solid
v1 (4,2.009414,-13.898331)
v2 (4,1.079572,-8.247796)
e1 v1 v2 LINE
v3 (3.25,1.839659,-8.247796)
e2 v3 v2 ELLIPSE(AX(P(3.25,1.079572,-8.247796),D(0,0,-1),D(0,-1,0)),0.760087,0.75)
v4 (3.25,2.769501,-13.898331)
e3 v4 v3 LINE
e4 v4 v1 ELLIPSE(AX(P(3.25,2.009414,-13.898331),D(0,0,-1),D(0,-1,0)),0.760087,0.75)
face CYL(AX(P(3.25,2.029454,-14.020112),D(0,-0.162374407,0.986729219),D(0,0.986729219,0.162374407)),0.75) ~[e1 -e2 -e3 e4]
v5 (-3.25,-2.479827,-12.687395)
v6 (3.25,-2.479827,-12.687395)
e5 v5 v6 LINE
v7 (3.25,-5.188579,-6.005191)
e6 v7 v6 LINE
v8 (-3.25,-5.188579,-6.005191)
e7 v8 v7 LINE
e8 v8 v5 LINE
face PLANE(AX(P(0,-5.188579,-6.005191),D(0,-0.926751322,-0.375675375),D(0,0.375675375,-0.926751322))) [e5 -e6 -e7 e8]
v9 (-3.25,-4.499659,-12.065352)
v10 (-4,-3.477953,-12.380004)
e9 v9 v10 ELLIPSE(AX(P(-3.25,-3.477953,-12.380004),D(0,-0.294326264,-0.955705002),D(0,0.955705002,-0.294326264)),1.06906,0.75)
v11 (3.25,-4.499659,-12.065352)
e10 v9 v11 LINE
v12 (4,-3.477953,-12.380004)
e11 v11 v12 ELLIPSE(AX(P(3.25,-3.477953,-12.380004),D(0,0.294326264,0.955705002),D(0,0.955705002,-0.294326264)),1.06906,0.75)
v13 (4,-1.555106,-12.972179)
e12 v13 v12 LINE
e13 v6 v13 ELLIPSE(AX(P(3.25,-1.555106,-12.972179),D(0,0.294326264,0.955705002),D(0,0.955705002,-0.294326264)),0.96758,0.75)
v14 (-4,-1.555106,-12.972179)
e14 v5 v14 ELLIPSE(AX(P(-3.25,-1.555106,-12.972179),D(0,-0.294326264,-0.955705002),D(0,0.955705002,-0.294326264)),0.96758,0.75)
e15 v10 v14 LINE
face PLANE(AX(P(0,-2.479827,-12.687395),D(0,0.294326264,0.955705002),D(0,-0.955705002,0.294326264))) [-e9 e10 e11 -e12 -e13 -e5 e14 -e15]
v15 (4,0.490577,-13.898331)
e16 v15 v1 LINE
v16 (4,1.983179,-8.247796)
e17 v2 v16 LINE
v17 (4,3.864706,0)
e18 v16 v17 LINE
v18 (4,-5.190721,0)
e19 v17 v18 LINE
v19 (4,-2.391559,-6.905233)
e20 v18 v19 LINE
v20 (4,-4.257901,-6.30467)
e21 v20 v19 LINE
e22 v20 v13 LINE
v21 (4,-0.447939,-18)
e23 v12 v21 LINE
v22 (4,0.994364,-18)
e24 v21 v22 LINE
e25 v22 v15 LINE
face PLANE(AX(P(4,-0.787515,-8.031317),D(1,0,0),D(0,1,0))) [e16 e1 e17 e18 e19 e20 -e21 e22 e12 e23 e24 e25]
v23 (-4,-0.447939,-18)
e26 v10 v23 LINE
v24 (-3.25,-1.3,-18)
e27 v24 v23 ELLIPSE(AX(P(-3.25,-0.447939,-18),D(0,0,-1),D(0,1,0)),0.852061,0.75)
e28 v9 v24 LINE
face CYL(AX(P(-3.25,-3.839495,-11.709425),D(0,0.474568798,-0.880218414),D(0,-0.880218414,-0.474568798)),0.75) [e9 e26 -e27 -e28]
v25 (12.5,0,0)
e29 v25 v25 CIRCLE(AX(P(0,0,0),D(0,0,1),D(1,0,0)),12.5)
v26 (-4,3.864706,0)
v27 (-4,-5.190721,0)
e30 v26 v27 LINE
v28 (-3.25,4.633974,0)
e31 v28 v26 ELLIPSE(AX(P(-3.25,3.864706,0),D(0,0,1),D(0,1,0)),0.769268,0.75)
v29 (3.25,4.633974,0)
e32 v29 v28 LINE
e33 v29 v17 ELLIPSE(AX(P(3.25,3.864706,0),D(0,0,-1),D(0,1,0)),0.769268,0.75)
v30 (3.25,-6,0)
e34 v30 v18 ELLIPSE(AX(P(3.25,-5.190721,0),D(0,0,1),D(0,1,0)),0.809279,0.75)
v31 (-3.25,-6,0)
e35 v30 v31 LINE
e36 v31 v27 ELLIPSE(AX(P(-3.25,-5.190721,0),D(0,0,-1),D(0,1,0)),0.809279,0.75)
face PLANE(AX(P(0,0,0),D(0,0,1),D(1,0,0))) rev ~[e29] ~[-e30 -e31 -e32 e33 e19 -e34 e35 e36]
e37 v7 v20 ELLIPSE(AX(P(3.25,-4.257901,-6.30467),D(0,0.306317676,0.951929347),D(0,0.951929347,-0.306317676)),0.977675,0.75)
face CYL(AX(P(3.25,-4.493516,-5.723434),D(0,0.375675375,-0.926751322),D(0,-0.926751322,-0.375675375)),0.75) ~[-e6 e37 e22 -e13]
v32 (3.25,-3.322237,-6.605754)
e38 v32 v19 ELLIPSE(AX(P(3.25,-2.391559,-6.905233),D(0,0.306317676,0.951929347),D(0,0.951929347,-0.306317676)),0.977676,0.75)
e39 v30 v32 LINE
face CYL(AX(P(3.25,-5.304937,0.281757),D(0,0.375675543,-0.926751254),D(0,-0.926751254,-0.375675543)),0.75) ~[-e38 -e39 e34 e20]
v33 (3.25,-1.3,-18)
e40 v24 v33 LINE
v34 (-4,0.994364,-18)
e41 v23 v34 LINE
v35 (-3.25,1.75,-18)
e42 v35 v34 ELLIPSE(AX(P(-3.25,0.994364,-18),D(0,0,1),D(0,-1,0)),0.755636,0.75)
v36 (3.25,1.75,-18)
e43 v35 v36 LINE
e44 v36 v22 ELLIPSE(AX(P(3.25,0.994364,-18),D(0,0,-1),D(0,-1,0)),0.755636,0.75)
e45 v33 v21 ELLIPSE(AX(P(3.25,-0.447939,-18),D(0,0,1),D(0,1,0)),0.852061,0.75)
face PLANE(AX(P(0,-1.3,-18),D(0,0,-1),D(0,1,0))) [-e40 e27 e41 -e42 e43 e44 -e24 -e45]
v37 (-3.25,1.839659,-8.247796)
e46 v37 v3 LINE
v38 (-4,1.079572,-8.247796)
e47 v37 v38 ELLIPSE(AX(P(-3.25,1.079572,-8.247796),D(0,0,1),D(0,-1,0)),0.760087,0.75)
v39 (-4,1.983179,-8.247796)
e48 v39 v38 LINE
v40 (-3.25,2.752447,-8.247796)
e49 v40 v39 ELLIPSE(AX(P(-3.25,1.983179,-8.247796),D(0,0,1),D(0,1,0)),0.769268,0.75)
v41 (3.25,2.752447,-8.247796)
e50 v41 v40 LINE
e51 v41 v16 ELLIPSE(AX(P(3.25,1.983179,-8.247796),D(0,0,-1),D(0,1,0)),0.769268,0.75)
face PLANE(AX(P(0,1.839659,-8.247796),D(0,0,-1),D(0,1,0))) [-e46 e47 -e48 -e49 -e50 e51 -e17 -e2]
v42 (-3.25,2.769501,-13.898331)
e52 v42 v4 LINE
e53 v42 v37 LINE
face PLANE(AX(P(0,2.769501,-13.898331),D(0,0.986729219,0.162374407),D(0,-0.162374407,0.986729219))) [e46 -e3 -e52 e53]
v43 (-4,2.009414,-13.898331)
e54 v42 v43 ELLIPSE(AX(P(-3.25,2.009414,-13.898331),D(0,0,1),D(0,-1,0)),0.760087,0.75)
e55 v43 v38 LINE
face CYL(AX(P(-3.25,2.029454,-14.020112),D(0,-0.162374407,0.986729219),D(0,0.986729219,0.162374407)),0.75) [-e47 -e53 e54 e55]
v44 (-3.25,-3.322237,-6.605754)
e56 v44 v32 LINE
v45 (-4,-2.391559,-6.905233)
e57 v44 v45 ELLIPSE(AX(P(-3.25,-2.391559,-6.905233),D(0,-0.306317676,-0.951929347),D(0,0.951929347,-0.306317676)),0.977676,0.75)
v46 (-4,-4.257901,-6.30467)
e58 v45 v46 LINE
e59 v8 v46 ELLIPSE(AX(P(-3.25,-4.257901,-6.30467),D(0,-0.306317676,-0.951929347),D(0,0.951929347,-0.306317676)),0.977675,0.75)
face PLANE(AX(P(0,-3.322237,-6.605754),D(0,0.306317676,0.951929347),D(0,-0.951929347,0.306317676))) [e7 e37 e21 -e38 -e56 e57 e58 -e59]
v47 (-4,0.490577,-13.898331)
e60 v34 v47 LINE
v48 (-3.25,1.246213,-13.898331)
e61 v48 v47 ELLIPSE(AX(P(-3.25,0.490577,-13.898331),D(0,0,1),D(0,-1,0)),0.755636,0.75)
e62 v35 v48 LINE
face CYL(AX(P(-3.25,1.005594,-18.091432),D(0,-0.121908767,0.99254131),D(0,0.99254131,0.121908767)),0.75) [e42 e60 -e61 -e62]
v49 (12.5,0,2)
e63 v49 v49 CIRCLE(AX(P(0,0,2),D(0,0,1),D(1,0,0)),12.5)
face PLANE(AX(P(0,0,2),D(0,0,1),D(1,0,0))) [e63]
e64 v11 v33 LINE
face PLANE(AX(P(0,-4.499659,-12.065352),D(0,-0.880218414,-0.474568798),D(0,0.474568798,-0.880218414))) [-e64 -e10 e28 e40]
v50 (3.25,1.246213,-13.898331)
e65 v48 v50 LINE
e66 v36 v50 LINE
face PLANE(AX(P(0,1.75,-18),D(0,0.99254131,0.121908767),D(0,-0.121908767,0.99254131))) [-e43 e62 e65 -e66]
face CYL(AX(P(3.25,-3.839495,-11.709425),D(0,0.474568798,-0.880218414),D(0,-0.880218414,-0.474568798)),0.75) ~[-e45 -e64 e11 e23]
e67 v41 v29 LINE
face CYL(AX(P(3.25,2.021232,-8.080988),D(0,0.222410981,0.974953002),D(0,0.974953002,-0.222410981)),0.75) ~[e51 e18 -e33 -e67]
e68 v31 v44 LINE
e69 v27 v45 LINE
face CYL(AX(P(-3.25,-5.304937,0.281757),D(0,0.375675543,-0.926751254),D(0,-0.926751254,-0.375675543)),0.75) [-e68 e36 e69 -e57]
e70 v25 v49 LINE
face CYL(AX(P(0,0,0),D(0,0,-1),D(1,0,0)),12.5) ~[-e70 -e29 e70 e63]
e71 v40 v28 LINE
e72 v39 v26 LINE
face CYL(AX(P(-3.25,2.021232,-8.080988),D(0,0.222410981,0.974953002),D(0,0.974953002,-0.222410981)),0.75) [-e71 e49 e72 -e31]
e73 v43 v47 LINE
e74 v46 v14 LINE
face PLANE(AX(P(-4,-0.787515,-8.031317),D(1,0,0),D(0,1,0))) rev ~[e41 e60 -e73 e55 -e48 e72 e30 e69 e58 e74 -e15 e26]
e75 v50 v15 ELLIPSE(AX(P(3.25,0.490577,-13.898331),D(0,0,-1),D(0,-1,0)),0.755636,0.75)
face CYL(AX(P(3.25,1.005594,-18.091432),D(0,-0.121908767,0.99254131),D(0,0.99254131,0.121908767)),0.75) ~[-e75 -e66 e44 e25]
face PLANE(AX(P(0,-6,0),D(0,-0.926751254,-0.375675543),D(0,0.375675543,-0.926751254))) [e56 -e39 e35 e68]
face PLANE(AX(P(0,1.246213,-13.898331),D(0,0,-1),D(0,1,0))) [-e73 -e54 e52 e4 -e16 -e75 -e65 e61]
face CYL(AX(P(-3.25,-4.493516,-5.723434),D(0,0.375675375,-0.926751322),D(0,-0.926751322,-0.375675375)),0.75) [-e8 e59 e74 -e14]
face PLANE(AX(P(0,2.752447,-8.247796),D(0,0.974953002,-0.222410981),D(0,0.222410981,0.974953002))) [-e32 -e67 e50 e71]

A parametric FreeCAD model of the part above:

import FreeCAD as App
import Part
import Sketcher
Q = App.Units.Quantity


def edges_at(feature, points):
    """Names of the edges that pass closest to the given points."""
    edges = feature.Shape.Edges
    near = lambda p: min(range(len(edges)), key=lambda i: edges[i].distToShape(Part.Vertex(*p))[0])
    return sorted({f"Edge{near(p) + 1}" for p in points})

doc = App.newDocument("Part")
body = doc.addObject("PartDesign::Body", "Body")

# Sketch on XY plane
sketch1 = body.newObject("Sketcher::SketchObject", "Sketch")
sketch1.AttachmentSupport = (doc.getObject("XY_Plane"), [""])
sketch1.MapMode = "FlatFace"
sketch1.addGeometry(Part.Circle(App.Vector(0, 0, 0), App.Vector(0, 0, 1), 12.5), False)
sketch1.addConstraint(Sketcher.Constraint("Coincident", 0, 3, -1, 1))
sketch1.addConstraint(Sketcher.Constraint("Diameter", 0, Q("25 mm")))
pad1 = body.newObject("PartDesign::Pad", "Pad")
pad1.Profile = sketch1
pad1.Length = 2

# Sketch on YZ plane
sketch2 = body.newObject("Sketcher::SketchObject", "Sketch001")
sketch2.AttachmentSupport = (doc.getObject("YZ_Plane"), [""])
sketch2.MapMode = "FlatFace"
sketch2.addGeometry(Part.LineSegment(App.Vector(4.633974, 0, 0), App.Vector(-6, 0, 0)), False)
sketch2.addGeometry(Part.LineSegment(App.Vector(-6, 0, 0), App.Vector(-3.322237, -6.605754, 0)), False)
sketch2.addGeometry(Part.LineSegment(App.Vector(-3.322237, -6.605754, 0), App.Vector(-5.188579, -6.005191, 0)), False)
sketch2.addGeometry(Part.LineSegment(App.Vector(-5.188579, -6.005191, 0), App.Vector(-2.479827, -12.687395, 0)), False)
sketch2.addGeometry(Part.LineSegment(App.Vector(-2.479827, -12.687395, 0), App.Vector(-4.499659, -12.065352, 0)), False)
sketch2.addGeometry(Part.LineSegment(App.Vector(-4.499659, -12.065352, 0), App.Vector(-1.3, -18, 0)), False)
sketch2.addGeometry(Part.LineSegment(App.Vector(-1.3, -18, 0), App.Vector(1.75, -18, 0)), False)
sketch2.addGeometry(Part.LineSegment(App.Vector(1.75, -18, 0), App.Vector(1.246213, -13.898331, 0)), False)
sketch2.addGeometry(Part.LineSegment(App.Vector(1.246213, -13.898331, 0), App.Vector(2.769501, -13.898331, 0)), False)
sketch2.addGeometry(Part.LineSegment(App.Vector(2.769501, -13.898331, 0), App.Vector(1.839659, -8.247796, 0)), False)
sketch2.addGeometry(Part.LineSegment(App.Vector(1.839659, -8.247796, 0), App.Vector(2.752447, -8.247796, 0)), False)
sketch2.addGeometry(Part.LineSegment(App.Vector(2.752447, -8.247796, 0), App.Vector(4.633974, 0, 0)), False)
sketch2.addConstraint(Sketcher.Constraint("Coincident", 0, 2, 1, 1))
sketch2.addConstraint(Sketcher.Constraint("Coincident", 1, 2, 2, 1))
sketch2.addConstraint(Sketcher.Constraint("Coincident", 2, 2, 3, 1))
sketch2.addConstraint(Sketcher.Constraint("Coincident", 3, 2, 4, 1))
sketch2.addConstraint(Sketcher.Constraint("Coincident", 4, 2, 5, 1))
sketch2.addConstraint(Sketcher.Constraint("Coincident", 5, 2, 6, 1))
sketch2.addConstraint(Sketcher.Constraint("Coincident", 6, 2, 7, 1))
sketch2.addConstraint(Sketcher.Constraint("Coincident", 7, 2, 8, 1))
sketch2.addConstraint(Sketcher.Constraint("Coincident", 8, 2, 9, 1))
sketch2.addConstraint(Sketcher.Constraint("Coincident", 9, 2, 10, 1))
sketch2.addConstraint(Sketcher.Constraint("Coincident", 10, 2, 11, 1))
sketch2.addConstraint(Sketcher.Constraint("Coincident", 11, 2, 0, 1))
sketch2.addConstraint(Sketcher.Constraint("Horizontal", 0))
sketch2.addConstraint(Sketcher.Constraint("Horizontal", 6))
sketch2.addConstraint(Sketcher.Constraint("Horizontal", 8))
sketch2.addConstraint(Sketcher.Constraint("Horizontal", 10))
sketch2.addConstraint(Sketcher.Constraint("PointOnObject", 0, 2, -1))
sketch2.addConstraint(Sketcher.Constraint("Parallel", 1, 3))
sketch2.addConstraint(Sketcher.Constraint("DistanceX", 0, 2, -1, 1, Q("6 mm")))
sketch2.addConstraint(Sketcher.Constraint("DistanceY", 5, 2, -1, 1, Q("18 mm")))
sketch2.addConstraint(Sketcher.Constraint("DistanceX", 6, 1, 6, 2, Q("3.05 mm")))
sketch2.addConstraint(Sketcher.Constraint("DistanceX", 5, 2, -1, 1, Q("1.3 mm")))
sketch2.addConstraint(Sketcher.Constraint("DistanceX", 10, 1, 10, 2, Q("0.912788 mm")))
sketch2.addConstraint(Sketcher.Constraint("DistanceX", -1, 1, 8, 2, Q("2.769501 mm")))
sketch2.addConstraint(Sketcher.Constraint("DistanceY", 4, 2, 1, 2, Q("5.459598 mm")))
sketch2.addConstraint(Sketcher.Constraint("DistanceY", 3, 2, 9, 2, Q("4.439599 mm")))
sketch2.addConstraint(Sketcher.Constraint("Distance", 1, Q("7.127861 mm")))
sketch2.addConstraint(Sketcher.Constraint("Distance", 2, Q("1.960589 mm")))
sketch2.addConstraint(Sketcher.Constraint("Distance", 7, Q("4.132492 mm")))
sketch2.addConstraint(Sketcher.Constraint("Distance", 9, Q("5.726531 mm")))
sketch2.addConstraint(Sketcher.Constraint("DistanceX", 0, 2, 0, 1, Q("10.633974 mm")))
sketch2.addConstraint(Sketcher.Constraint("DistanceX", 8, 1, 8, 2, Q("1.523288 mm")))
sketch2.addConstraint(Sketcher.Constraint("DistanceX", 2, 2, -1, 1, Q("5.188579 mm")))
sketch2.addConstraint(Sketcher.Constraint("DistanceY", 2, 2, -1, 1, Q("6.005191 mm")))
sketch2.addConstraint(Sketcher.Constraint("DistanceX", 4, 2, -1, 1, Q("4.499659 mm")))
sketch2.addConstraint(Sketcher.Constraint("DistanceX", -1, 1, 9, 2, Q("1.839659 mm")))
pad2 = body.newObject("PartDesign::Pad", "Pad001")
pad2.Profile = sketch2
pad2.Type = "TwoLengths"
pad2.Length = 4
pad2.Length2 = 4
doc.recompute()

fillet = body.newObject("PartDesign::Fillet", "Fillet")
fillet.Base = (pad2, edges_at(pad2, [
    (-4, 3.693, -4.124),
    (-4, -4.661, -3.303),
    (-4, 2.305, -11.073),
    (-4, -3.834, -9.346),
    (-4, 1.498, -15.949),
    (-4, -2.9, -15.033),
    (4, 3.693, -4.124),
    (4, 2.305, -11.073),
    (4, -2.9, -15.033),
    (4, 1.498, -15.949),
    (4, -3.834, -9.346),
    (4, -4.661, -3.303),
]))
fillet.Radius = 0.75

doc.recompute()
